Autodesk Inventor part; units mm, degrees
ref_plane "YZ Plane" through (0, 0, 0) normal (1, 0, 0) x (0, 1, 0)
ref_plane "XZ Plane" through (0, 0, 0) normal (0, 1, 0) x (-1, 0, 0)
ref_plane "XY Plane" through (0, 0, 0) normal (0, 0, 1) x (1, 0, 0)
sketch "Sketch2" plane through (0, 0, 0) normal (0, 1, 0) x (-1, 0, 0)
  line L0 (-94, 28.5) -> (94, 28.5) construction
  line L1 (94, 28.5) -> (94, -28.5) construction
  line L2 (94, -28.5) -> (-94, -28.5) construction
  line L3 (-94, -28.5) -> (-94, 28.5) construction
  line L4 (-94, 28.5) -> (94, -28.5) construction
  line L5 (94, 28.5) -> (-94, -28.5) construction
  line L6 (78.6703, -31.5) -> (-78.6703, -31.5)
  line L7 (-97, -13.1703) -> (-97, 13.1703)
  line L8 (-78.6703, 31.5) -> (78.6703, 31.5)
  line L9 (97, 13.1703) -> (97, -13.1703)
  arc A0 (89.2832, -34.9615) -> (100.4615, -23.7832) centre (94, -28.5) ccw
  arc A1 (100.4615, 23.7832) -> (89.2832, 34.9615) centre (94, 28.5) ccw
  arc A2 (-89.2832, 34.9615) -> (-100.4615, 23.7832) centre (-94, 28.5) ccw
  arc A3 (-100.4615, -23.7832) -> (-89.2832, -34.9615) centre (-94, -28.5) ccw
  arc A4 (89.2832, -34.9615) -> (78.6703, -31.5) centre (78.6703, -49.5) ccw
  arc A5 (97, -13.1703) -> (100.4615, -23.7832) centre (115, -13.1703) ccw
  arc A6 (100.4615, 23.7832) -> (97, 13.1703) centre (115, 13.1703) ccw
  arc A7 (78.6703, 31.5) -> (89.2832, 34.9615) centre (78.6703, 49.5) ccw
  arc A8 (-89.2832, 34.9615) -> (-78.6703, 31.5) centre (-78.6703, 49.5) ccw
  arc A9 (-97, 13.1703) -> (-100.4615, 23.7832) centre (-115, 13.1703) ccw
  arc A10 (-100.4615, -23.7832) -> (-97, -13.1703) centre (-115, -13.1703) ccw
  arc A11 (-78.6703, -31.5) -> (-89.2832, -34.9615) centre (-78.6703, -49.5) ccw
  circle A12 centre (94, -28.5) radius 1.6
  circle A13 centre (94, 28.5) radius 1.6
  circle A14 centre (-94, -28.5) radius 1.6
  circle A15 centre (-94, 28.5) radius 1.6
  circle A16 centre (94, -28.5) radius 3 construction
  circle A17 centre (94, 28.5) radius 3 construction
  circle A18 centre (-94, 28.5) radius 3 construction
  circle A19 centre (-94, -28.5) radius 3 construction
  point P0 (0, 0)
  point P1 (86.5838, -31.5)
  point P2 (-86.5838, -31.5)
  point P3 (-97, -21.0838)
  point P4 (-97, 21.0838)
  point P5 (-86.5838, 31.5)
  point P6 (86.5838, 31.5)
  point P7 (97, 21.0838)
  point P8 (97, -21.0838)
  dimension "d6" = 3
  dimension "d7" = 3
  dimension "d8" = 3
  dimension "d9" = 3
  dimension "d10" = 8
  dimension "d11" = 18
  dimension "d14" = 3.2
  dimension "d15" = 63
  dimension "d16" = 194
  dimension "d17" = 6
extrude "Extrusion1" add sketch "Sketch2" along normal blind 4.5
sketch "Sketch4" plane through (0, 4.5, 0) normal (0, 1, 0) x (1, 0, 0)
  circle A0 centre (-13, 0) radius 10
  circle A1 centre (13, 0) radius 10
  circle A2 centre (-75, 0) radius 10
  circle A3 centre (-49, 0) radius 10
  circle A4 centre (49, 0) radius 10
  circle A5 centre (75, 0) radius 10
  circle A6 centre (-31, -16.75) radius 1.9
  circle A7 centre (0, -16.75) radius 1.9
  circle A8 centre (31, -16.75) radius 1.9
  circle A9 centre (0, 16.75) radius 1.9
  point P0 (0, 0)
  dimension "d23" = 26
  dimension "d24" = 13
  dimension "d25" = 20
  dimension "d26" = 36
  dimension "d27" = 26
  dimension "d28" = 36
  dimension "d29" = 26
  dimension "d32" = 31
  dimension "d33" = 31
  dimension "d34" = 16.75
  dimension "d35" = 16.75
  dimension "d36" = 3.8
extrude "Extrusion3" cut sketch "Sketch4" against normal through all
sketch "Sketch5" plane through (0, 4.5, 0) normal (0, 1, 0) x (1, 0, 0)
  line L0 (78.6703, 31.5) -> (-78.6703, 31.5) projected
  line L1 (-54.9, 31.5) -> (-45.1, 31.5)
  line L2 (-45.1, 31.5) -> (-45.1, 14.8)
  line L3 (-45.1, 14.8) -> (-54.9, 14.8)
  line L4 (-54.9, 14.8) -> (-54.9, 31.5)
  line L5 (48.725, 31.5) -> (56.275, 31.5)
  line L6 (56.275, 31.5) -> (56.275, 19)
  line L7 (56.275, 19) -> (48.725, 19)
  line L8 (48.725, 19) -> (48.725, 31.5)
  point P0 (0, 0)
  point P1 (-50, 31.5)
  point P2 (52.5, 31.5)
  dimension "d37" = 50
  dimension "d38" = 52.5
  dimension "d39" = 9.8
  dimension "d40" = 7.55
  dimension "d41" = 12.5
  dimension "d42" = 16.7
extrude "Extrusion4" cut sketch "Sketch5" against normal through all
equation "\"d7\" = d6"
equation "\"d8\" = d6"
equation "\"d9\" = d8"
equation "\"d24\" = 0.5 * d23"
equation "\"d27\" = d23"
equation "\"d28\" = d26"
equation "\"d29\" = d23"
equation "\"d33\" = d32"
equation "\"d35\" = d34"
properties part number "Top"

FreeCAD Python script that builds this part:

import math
import FreeCAD as App
import Part
import Sketcher
from FreeCAD import Vector
Q = App.Units.Quantity


def add_polygon(sketch, points):
    """Adds a closed chain of lines whose ends are joined by coincident constraints."""
    first, n = sketch.GeometryCount, len(points)
    for a, b in zip(points, points[1:] + points[:1]):
        sketch.addGeometry(Part.LineSegment(App.Vector(*a, 0), App.Vector(*b, 0)), False)
    for i in range(n):
        sketch.addConstraint(Sketcher.Constraint("Coincident", first + i, 2, first + (i + 1) % n, 1))

doc = App.newDocument("Part")
params = doc.addObject("Spreadsheet::Sheet", "Params")
for row, (alias, value) in enumerate([
    ("sketch1_radius", "18 mm"),
    ("sketch1_radius2", "8 mm"),
    ("sketch1_diameter", "3.2 mm"),
    ("pad1_length", "4.5 mm"),
    ("sketch2_diameter", "20 mm"),
    ("sketch2_diameter2", "3.8 mm"),
    ("sketch3_width", "9.8 mm"),
    ("sketch3_height", "12.5 mm"),
    ("sketch3_height2", "16.7 mm"),
    ("sketch3_width2", "7.55 mm"),
], start=1):
    params.set(f"A{row}", alias)
    params.set(f"B{row}", "=" + value)
    params.setAlias(f"B{row}", alias)

body = doc.addObject("PartDesign::Body", "Body")

# Sketch on XZ plane
sketch1 = body.newObject("Sketcher::SketchObject", "Sketch")
sketch1.AttachmentSupport = (doc.getObject("XZ_Plane"), [""])
sketch1.MapMode = "FlatFace"
sketch1.addGeometry([
    Part.LineSegment(Vector(78.6703, -31.5, 0), Vector(-78.6703, -31.5, 0)),  # 0
    Part.ArcOfCircle(Part.Circle(Vector(-78.6703, -49.5, 0), Vector(0, 0, 1), 18.000045), math.radians(90), math.radians(126.128917)),  # 1
    Part.ArcOfCircle(Part.Circle(Vector(-94, -28.5, 0), Vector(0, 0, 1), 7.999949), math.radians(143.871105), math.radians(306.128895)),  # 2
    Part.ArcOfCircle(Part.Circle(Vector(-115, -13.1703, 0), Vector(0, 0, 1), 18), math.radians(-36.128917), math.radians(0)),  # 3
    Part.LineSegment(Vector(-97, -13.1703, 0), Vector(-97, 13.1703, 0)),  # 4
    Part.ArcOfCircle(Part.Circle(Vector(-115, 13.1703, 0), Vector(0, 0, 1), 18.000045), math.radians(0), math.radians(36.128917)),  # 5
    Part.ArcOfCircle(Part.Circle(Vector(-94, 28.5, 0), Vector(0, 0, 1), 7.999949), math.radians(53.871105), math.radians(216.128895)),  # 6
    Part.ArcOfCircle(Part.Circle(Vector(-78.6703, 49.5, 0), Vector(0, 0, 1), 18), math.radians(-126.128917), math.radians(-90)),  # 7
    Part.LineSegment(Vector(-78.6703, 31.5, 0), Vector(78.6703, 31.5, 0)),  # 8
    Part.ArcOfCircle(Part.Circle(Vector(78.6703, 49.5, 0), Vector(0, 0, 1), 18.000045), math.radians(-90), math.radians(-53.871083)),  # 9
    Part.ArcOfCircle(Part.Circle(Vector(94, 28.5, 0), Vector(0, 0, 1), 7.999949), math.radians(-36.128895), math.radians(126.128895)),  # 10
    Part.ArcOfCircle(Part.Circle(Vector(115, 13.1703, 0), Vector(0, 0, 1), 18), math.radians(143.871083), math.radians(180)),  # 11
    Part.LineSegment(Vector(97, 13.1703, 0), Vector(97, -13.1703, 0)),  # 12
    Part.ArcOfCircle(Part.Circle(Vector(115, -13.1703, 0), Vector(0, 0, 1), 18.000045), math.radians(180), math.radians(216.128917)),  # 13
    Part.ArcOfCircle(Part.Circle(Vector(94, -28.5, 0), Vector(0, 0, 1), 7.999949), math.radians(-126.128895), math.radians(36.128895)),  # 14
    Part.ArcOfCircle(Part.Circle(Vector(78.6703, -49.5, 0), Vector(0, 0, 1), 18), math.radians(53.871083), math.radians(90)),  # 15
    Part.Circle(Vector(94, -28.5, 0), Vector(0, 0, 1), 1.6),  # 16
    Part.Circle(Vector(-94, -28.5, 0), Vector(0, 0, 1), 1.6),  # 17
    Part.Circle(Vector(94, 28.5, 0), Vector(0, 0, 1), 1.6),  # 18
    Part.Circle(Vector(-94, 28.5, 0), Vector(0, 0, 1), 1.6),  # 19
], False)
sketch1.addConstraint([
    Sketcher.Constraint("Tangent", 0, 2, 1, 1),
    Sketcher.Constraint("Tangent", 1, 2, 2, 2),
    Sketcher.Constraint("Tangent", 2, 1, 3, 1),
    Sketcher.Constraint("Tangent", 3, 2, 4, 1),
    Sketcher.Constraint("Tangent", 4, 2, 5, 1),
    Sketcher.Constraint("Tangent", 5, 2, 6, 2),
    Sketcher.Constraint("Tangent", 6, 1, 7, 1),
    Sketcher.Constraint("Tangent", 7, 2, 8, 1),
    Sketcher.Constraint("Tangent", 8, 2, 9, 1),
    Sketcher.Constraint("Tangent", 9, 2, 10, 2),
    Sketcher.Constraint("Tangent", 10, 1, 11, 1),
    Sketcher.Constraint("Tangent", 11, 2, 12, 1),
    Sketcher.Constraint("Tangent", 12, 2, 13, 1),
    Sketcher.Constraint("Tangent", 13, 2, 14, 2),
    Sketcher.Constraint("Tangent", 14, 1, 15, 1),
    Sketcher.Constraint("Tangent", 15, 2, 0, 1),
    Sketcher.Constraint("Horizontal", 0),
    Sketcher.Constraint("Vertical", 4),
    Sketcher.Constraint("Horizontal", 8),
    Sketcher.Constraint("Vertical", 12),
    Sketcher.Constraint("Coincident", 16, 3, 14, 3),
    Sketcher.Constraint("Coincident", 17, 3, 2, 3),
    Sketcher.Constraint("Coincident", 18, 3, 10, 3),
    Sketcher.Constraint("Coincident", 19, 3, 6, 3),
    Sketcher.Constraint("Equal", 1, 3),
    Sketcher.Constraint("Equal", 3, 5),
    Sketcher.Constraint("Equal", 2, 6),
    Sketcher.Constraint("Equal", 5, 7),
    Sketcher.Constraint("Equal", 7, 9),
    Sketcher.Constraint("Equal", 6, 10),
    Sketcher.Constraint("Equal", 9, 11),
    Sketcher.Constraint("Equal", 11, 13),
    Sketcher.Constraint("Equal", 10, 14),
    Sketcher.Constraint("Equal", 13, 15),
    Sketcher.Constraint("Equal", 16, 17),
    Sketcher.Constraint("Equal", 17, 18),
    Sketcher.Constraint("Equal", 18, 19),
    Sketcher.Constraint("Symmetric", 1, 3, 9, 3, -1, 1),
    Sketcher.Constraint("Symmetric", 3, 3, 11, 3, -1, 1),
    Sketcher.Constraint("Symmetric", 6, 3, 14, 3, -1, 1),
    Sketcher.Constraint("Symmetric", 6, 3, 10, 3, -2),
    Sketcher.Constraint("Radius", 1, Q("18 mm")),
    Sketcher.Constraint("Radius", 2, Q("8 mm")),
    Sketcher.Constraint("Diameter", 16, Q("3.2 mm")),
    Sketcher.Constraint("DistanceY", 0, 2, 2, 3, Q("3 mm")),
    Sketcher.Constraint("DistanceX", 3, 2, 2, 3, Q("3 mm")),
    Sketcher.Constraint("DistanceX", 2, 3, -1, 1, Q("94 mm")),
    Sketcher.Constraint("DistanceY", 2, 3, 6, 3, Q("57 mm")),
])
sketch1.setExpression("Constraints[41]", "Params.sketch1_radius")
sketch1.setExpression("Constraints[42]", "Params.sketch1_radius2")
sketch1.setExpression("Constraints[43]", "Params.sketch1_diameter")
pad1 = body.newObject("PartDesign::Pad", "Pad")
pad1.Profile = sketch1
pad1.setExpression("Length", "Params.pad1_length")
pad1.Reversed = True

# Sketch on XZ plane
sketch2 = body.newObject("Sketcher::SketchObject", "Sketch001")
sketch2.AttachmentSupport = (doc.getObject("XZ_Plane"), [""])
sketch2.MapMode = "FlatFace"
sketch2.AttachmentOffset = App.Placement(Vector(0, 0, -4.5), App.Rotation())
sketch2.addGeometry([
    Part.Circle(Vector(-13, 0, 0), Vector(0, 0, 1), 10),  # 0
    Part.Circle(Vector(13, 0, 0), Vector(0, 0, 1), 10),  # 1
    Part.Circle(Vector(-75, 0, 0), Vector(0, 0, 1), 10),  # 2
    Part.Circle(Vector(-49, 0, 0), Vector(0, 0, 1), 10),  # 3
    Part.Circle(Vector(49, 0, 0), Vector(0, 0, 1), 10),  # 4
    Part.Circle(Vector(75, 0, 0), Vector(0, 0, 1), 10),  # 5
    Part.Circle(Vector(-31, 16.75, 0), Vector(0, 0, 1), 1.9),  # 6
    Part.Circle(Vector(0, 16.75, 0), Vector(0, 0, 1), 1.9),  # 7
    Part.Circle(Vector(31, 16.75, 0), Vector(0, 0, 1), 1.9),  # 8
    Part.Circle(Vector(0, -16.75, 0), Vector(0, 0, 1), 1.9),  # 9
], False)
sketch2.addConstraint([
    Sketcher.Constraint("Equal", 0, 1),
    Sketcher.Constraint("Equal", 1, 2),
    Sketcher.Constraint("Equal", 2, 3),
    Sketcher.Constraint("Equal", 3, 4),
    Sketcher.Constraint("Equal", 4, 5),
    Sketcher.Constraint("Equal", 6, 7),
    Sketcher.Constraint("Equal", 7, 8),
    Sketcher.Constraint("Equal", 8, 9),
    Sketcher.Constraint("Symmetric", 0, 3, 1, 3, -1, 1),
    Sketcher.Constraint("Symmetric", 3, 3, 4, 3, -1, 1),
    Sketcher.Constraint("Symmetric", 2, 3, 5, 3, -1, 1),
    Sketcher.Constraint("Symmetric", 7, 3, 9, 3, -1, 1),
    Sketcher.Constraint("Symmetric", 6, 3, 8, 3, -2),
    Sketcher.Constraint("PointOnObject", 0, 3, -1),
    Sketcher.Constraint("PointOnObject", 2, 3, -1),
    Sketcher.Constraint("PointOnObject", 3, 3, -1),
    Sketcher.Constraint("PointOnObject", 7, 3, -2),
    Sketcher.Constraint("Horizontal", 6, 3, 7, 3),
    Sketcher.Constraint("Diameter", 0, Q("20 mm")),
    Sketcher.Constraint("Diameter", 6, Q("3.8 mm")),
    Sketcher.Constraint("DistanceX", 0, 3, -1, 1, Q("13 mm")),
    Sketcher.Constraint("DistanceX", 6, 3, -1, 1, Q("31 mm")),
    Sketcher.Constraint("DistanceX", 2, 3, 3, 3, Q("26 mm")),
    Sketcher.Constraint("DistanceX", 3, 3, 0, 3, Q("36 mm")),
    Sketcher.Constraint("DistanceY", -1, 1, 6, 3, Q("16.75 mm")),
])
sketch2.setExpression("Constraints[18]", "Params.sketch2_diameter")
sketch2.setExpression("Constraints[19]", "Params.sketch2_diameter2")
pocket1 = body.newObject("PartDesign::Pocket", "Pocket")
pocket1.Profile = sketch2
pocket1.Type = "ThroughAll"
pocket1.Reversed = True

# Sketch on XZ plane
sketch3 = body.newObject("Sketcher::SketchObject", "Sketch002")
sketch3.AttachmentSupport = (doc.getObject("XZ_Plane"), [""])
sketch3.MapMode = "FlatFace"
sketch3.AttachmentOffset = App.Placement(Vector(0, 0, -4.5), App.Rotation())
add_polygon(sketch3, [(56.275, -19), (56.275, -31.5), (48.725, -31.5), (48.725, -19)])  # lines 0-3
add_polygon(sketch3, [(-45.1, -14.8), (-45.1, -31.5), (-54.9, -31.5), (-54.9, -14.8)])  # lines 4-7
sketch3.addConstraint([
    Sketcher.Constraint("Vertical", 0),
    Sketcher.Constraint("Horizontal", 1),
    Sketcher.Constraint("Vertical", 2),
    Sketcher.Constraint("Horizontal", 3),
    Sketcher.Constraint("Vertical", 4),
    Sketcher.Constraint("Horizontal", 5),
    Sketcher.Constraint("Vertical", 6),
    Sketcher.Constraint("Horizontal", 7),
    Sketcher.Constraint("Horizontal", 1, 2, 4, 2),
    Sketcher.Constraint("DistanceX", 5, 2, 5, 1, Q("9.8 mm")),
    Sketcher.Constraint("DistanceY", 0, 2, 0, 1, Q("12.5 mm")),
    Sketcher.Constraint("DistanceY", 4, 2, 4, 1, Q("16.7 mm")),
    Sketcher.Constraint("DistanceX", 1, 2, 1, 1, Q("7.55 mm")),
    Sketcher.Constraint("DistanceY", 2, 2, -1, 1, Q("19 mm")),
    Sketcher.Constraint("DistanceX", 4, 2, -1, 1, Q("45.1 mm")),
    Sketcher.Constraint("DistanceX", -1, 1, 0, 2, Q("56.275 mm")),
])
sketch3.setExpression("Constraints[17]", "Params.sketch3_width")
sketch3.setExpression("Constraints[18]", "Params.sketch3_height")
sketch3.setExpression("Constraints[19]", "Params.sketch3_height2")
sketch3.setExpression("Constraints[20]", "Params.sketch3_width2")
pocket2 = body.newObject("PartDesign::Pocket", "Pocket001")
pocket2.Profile = sketch3
pocket2.Type = "ThroughAll"
pocket2.Reversed = True

doc.recompute()
